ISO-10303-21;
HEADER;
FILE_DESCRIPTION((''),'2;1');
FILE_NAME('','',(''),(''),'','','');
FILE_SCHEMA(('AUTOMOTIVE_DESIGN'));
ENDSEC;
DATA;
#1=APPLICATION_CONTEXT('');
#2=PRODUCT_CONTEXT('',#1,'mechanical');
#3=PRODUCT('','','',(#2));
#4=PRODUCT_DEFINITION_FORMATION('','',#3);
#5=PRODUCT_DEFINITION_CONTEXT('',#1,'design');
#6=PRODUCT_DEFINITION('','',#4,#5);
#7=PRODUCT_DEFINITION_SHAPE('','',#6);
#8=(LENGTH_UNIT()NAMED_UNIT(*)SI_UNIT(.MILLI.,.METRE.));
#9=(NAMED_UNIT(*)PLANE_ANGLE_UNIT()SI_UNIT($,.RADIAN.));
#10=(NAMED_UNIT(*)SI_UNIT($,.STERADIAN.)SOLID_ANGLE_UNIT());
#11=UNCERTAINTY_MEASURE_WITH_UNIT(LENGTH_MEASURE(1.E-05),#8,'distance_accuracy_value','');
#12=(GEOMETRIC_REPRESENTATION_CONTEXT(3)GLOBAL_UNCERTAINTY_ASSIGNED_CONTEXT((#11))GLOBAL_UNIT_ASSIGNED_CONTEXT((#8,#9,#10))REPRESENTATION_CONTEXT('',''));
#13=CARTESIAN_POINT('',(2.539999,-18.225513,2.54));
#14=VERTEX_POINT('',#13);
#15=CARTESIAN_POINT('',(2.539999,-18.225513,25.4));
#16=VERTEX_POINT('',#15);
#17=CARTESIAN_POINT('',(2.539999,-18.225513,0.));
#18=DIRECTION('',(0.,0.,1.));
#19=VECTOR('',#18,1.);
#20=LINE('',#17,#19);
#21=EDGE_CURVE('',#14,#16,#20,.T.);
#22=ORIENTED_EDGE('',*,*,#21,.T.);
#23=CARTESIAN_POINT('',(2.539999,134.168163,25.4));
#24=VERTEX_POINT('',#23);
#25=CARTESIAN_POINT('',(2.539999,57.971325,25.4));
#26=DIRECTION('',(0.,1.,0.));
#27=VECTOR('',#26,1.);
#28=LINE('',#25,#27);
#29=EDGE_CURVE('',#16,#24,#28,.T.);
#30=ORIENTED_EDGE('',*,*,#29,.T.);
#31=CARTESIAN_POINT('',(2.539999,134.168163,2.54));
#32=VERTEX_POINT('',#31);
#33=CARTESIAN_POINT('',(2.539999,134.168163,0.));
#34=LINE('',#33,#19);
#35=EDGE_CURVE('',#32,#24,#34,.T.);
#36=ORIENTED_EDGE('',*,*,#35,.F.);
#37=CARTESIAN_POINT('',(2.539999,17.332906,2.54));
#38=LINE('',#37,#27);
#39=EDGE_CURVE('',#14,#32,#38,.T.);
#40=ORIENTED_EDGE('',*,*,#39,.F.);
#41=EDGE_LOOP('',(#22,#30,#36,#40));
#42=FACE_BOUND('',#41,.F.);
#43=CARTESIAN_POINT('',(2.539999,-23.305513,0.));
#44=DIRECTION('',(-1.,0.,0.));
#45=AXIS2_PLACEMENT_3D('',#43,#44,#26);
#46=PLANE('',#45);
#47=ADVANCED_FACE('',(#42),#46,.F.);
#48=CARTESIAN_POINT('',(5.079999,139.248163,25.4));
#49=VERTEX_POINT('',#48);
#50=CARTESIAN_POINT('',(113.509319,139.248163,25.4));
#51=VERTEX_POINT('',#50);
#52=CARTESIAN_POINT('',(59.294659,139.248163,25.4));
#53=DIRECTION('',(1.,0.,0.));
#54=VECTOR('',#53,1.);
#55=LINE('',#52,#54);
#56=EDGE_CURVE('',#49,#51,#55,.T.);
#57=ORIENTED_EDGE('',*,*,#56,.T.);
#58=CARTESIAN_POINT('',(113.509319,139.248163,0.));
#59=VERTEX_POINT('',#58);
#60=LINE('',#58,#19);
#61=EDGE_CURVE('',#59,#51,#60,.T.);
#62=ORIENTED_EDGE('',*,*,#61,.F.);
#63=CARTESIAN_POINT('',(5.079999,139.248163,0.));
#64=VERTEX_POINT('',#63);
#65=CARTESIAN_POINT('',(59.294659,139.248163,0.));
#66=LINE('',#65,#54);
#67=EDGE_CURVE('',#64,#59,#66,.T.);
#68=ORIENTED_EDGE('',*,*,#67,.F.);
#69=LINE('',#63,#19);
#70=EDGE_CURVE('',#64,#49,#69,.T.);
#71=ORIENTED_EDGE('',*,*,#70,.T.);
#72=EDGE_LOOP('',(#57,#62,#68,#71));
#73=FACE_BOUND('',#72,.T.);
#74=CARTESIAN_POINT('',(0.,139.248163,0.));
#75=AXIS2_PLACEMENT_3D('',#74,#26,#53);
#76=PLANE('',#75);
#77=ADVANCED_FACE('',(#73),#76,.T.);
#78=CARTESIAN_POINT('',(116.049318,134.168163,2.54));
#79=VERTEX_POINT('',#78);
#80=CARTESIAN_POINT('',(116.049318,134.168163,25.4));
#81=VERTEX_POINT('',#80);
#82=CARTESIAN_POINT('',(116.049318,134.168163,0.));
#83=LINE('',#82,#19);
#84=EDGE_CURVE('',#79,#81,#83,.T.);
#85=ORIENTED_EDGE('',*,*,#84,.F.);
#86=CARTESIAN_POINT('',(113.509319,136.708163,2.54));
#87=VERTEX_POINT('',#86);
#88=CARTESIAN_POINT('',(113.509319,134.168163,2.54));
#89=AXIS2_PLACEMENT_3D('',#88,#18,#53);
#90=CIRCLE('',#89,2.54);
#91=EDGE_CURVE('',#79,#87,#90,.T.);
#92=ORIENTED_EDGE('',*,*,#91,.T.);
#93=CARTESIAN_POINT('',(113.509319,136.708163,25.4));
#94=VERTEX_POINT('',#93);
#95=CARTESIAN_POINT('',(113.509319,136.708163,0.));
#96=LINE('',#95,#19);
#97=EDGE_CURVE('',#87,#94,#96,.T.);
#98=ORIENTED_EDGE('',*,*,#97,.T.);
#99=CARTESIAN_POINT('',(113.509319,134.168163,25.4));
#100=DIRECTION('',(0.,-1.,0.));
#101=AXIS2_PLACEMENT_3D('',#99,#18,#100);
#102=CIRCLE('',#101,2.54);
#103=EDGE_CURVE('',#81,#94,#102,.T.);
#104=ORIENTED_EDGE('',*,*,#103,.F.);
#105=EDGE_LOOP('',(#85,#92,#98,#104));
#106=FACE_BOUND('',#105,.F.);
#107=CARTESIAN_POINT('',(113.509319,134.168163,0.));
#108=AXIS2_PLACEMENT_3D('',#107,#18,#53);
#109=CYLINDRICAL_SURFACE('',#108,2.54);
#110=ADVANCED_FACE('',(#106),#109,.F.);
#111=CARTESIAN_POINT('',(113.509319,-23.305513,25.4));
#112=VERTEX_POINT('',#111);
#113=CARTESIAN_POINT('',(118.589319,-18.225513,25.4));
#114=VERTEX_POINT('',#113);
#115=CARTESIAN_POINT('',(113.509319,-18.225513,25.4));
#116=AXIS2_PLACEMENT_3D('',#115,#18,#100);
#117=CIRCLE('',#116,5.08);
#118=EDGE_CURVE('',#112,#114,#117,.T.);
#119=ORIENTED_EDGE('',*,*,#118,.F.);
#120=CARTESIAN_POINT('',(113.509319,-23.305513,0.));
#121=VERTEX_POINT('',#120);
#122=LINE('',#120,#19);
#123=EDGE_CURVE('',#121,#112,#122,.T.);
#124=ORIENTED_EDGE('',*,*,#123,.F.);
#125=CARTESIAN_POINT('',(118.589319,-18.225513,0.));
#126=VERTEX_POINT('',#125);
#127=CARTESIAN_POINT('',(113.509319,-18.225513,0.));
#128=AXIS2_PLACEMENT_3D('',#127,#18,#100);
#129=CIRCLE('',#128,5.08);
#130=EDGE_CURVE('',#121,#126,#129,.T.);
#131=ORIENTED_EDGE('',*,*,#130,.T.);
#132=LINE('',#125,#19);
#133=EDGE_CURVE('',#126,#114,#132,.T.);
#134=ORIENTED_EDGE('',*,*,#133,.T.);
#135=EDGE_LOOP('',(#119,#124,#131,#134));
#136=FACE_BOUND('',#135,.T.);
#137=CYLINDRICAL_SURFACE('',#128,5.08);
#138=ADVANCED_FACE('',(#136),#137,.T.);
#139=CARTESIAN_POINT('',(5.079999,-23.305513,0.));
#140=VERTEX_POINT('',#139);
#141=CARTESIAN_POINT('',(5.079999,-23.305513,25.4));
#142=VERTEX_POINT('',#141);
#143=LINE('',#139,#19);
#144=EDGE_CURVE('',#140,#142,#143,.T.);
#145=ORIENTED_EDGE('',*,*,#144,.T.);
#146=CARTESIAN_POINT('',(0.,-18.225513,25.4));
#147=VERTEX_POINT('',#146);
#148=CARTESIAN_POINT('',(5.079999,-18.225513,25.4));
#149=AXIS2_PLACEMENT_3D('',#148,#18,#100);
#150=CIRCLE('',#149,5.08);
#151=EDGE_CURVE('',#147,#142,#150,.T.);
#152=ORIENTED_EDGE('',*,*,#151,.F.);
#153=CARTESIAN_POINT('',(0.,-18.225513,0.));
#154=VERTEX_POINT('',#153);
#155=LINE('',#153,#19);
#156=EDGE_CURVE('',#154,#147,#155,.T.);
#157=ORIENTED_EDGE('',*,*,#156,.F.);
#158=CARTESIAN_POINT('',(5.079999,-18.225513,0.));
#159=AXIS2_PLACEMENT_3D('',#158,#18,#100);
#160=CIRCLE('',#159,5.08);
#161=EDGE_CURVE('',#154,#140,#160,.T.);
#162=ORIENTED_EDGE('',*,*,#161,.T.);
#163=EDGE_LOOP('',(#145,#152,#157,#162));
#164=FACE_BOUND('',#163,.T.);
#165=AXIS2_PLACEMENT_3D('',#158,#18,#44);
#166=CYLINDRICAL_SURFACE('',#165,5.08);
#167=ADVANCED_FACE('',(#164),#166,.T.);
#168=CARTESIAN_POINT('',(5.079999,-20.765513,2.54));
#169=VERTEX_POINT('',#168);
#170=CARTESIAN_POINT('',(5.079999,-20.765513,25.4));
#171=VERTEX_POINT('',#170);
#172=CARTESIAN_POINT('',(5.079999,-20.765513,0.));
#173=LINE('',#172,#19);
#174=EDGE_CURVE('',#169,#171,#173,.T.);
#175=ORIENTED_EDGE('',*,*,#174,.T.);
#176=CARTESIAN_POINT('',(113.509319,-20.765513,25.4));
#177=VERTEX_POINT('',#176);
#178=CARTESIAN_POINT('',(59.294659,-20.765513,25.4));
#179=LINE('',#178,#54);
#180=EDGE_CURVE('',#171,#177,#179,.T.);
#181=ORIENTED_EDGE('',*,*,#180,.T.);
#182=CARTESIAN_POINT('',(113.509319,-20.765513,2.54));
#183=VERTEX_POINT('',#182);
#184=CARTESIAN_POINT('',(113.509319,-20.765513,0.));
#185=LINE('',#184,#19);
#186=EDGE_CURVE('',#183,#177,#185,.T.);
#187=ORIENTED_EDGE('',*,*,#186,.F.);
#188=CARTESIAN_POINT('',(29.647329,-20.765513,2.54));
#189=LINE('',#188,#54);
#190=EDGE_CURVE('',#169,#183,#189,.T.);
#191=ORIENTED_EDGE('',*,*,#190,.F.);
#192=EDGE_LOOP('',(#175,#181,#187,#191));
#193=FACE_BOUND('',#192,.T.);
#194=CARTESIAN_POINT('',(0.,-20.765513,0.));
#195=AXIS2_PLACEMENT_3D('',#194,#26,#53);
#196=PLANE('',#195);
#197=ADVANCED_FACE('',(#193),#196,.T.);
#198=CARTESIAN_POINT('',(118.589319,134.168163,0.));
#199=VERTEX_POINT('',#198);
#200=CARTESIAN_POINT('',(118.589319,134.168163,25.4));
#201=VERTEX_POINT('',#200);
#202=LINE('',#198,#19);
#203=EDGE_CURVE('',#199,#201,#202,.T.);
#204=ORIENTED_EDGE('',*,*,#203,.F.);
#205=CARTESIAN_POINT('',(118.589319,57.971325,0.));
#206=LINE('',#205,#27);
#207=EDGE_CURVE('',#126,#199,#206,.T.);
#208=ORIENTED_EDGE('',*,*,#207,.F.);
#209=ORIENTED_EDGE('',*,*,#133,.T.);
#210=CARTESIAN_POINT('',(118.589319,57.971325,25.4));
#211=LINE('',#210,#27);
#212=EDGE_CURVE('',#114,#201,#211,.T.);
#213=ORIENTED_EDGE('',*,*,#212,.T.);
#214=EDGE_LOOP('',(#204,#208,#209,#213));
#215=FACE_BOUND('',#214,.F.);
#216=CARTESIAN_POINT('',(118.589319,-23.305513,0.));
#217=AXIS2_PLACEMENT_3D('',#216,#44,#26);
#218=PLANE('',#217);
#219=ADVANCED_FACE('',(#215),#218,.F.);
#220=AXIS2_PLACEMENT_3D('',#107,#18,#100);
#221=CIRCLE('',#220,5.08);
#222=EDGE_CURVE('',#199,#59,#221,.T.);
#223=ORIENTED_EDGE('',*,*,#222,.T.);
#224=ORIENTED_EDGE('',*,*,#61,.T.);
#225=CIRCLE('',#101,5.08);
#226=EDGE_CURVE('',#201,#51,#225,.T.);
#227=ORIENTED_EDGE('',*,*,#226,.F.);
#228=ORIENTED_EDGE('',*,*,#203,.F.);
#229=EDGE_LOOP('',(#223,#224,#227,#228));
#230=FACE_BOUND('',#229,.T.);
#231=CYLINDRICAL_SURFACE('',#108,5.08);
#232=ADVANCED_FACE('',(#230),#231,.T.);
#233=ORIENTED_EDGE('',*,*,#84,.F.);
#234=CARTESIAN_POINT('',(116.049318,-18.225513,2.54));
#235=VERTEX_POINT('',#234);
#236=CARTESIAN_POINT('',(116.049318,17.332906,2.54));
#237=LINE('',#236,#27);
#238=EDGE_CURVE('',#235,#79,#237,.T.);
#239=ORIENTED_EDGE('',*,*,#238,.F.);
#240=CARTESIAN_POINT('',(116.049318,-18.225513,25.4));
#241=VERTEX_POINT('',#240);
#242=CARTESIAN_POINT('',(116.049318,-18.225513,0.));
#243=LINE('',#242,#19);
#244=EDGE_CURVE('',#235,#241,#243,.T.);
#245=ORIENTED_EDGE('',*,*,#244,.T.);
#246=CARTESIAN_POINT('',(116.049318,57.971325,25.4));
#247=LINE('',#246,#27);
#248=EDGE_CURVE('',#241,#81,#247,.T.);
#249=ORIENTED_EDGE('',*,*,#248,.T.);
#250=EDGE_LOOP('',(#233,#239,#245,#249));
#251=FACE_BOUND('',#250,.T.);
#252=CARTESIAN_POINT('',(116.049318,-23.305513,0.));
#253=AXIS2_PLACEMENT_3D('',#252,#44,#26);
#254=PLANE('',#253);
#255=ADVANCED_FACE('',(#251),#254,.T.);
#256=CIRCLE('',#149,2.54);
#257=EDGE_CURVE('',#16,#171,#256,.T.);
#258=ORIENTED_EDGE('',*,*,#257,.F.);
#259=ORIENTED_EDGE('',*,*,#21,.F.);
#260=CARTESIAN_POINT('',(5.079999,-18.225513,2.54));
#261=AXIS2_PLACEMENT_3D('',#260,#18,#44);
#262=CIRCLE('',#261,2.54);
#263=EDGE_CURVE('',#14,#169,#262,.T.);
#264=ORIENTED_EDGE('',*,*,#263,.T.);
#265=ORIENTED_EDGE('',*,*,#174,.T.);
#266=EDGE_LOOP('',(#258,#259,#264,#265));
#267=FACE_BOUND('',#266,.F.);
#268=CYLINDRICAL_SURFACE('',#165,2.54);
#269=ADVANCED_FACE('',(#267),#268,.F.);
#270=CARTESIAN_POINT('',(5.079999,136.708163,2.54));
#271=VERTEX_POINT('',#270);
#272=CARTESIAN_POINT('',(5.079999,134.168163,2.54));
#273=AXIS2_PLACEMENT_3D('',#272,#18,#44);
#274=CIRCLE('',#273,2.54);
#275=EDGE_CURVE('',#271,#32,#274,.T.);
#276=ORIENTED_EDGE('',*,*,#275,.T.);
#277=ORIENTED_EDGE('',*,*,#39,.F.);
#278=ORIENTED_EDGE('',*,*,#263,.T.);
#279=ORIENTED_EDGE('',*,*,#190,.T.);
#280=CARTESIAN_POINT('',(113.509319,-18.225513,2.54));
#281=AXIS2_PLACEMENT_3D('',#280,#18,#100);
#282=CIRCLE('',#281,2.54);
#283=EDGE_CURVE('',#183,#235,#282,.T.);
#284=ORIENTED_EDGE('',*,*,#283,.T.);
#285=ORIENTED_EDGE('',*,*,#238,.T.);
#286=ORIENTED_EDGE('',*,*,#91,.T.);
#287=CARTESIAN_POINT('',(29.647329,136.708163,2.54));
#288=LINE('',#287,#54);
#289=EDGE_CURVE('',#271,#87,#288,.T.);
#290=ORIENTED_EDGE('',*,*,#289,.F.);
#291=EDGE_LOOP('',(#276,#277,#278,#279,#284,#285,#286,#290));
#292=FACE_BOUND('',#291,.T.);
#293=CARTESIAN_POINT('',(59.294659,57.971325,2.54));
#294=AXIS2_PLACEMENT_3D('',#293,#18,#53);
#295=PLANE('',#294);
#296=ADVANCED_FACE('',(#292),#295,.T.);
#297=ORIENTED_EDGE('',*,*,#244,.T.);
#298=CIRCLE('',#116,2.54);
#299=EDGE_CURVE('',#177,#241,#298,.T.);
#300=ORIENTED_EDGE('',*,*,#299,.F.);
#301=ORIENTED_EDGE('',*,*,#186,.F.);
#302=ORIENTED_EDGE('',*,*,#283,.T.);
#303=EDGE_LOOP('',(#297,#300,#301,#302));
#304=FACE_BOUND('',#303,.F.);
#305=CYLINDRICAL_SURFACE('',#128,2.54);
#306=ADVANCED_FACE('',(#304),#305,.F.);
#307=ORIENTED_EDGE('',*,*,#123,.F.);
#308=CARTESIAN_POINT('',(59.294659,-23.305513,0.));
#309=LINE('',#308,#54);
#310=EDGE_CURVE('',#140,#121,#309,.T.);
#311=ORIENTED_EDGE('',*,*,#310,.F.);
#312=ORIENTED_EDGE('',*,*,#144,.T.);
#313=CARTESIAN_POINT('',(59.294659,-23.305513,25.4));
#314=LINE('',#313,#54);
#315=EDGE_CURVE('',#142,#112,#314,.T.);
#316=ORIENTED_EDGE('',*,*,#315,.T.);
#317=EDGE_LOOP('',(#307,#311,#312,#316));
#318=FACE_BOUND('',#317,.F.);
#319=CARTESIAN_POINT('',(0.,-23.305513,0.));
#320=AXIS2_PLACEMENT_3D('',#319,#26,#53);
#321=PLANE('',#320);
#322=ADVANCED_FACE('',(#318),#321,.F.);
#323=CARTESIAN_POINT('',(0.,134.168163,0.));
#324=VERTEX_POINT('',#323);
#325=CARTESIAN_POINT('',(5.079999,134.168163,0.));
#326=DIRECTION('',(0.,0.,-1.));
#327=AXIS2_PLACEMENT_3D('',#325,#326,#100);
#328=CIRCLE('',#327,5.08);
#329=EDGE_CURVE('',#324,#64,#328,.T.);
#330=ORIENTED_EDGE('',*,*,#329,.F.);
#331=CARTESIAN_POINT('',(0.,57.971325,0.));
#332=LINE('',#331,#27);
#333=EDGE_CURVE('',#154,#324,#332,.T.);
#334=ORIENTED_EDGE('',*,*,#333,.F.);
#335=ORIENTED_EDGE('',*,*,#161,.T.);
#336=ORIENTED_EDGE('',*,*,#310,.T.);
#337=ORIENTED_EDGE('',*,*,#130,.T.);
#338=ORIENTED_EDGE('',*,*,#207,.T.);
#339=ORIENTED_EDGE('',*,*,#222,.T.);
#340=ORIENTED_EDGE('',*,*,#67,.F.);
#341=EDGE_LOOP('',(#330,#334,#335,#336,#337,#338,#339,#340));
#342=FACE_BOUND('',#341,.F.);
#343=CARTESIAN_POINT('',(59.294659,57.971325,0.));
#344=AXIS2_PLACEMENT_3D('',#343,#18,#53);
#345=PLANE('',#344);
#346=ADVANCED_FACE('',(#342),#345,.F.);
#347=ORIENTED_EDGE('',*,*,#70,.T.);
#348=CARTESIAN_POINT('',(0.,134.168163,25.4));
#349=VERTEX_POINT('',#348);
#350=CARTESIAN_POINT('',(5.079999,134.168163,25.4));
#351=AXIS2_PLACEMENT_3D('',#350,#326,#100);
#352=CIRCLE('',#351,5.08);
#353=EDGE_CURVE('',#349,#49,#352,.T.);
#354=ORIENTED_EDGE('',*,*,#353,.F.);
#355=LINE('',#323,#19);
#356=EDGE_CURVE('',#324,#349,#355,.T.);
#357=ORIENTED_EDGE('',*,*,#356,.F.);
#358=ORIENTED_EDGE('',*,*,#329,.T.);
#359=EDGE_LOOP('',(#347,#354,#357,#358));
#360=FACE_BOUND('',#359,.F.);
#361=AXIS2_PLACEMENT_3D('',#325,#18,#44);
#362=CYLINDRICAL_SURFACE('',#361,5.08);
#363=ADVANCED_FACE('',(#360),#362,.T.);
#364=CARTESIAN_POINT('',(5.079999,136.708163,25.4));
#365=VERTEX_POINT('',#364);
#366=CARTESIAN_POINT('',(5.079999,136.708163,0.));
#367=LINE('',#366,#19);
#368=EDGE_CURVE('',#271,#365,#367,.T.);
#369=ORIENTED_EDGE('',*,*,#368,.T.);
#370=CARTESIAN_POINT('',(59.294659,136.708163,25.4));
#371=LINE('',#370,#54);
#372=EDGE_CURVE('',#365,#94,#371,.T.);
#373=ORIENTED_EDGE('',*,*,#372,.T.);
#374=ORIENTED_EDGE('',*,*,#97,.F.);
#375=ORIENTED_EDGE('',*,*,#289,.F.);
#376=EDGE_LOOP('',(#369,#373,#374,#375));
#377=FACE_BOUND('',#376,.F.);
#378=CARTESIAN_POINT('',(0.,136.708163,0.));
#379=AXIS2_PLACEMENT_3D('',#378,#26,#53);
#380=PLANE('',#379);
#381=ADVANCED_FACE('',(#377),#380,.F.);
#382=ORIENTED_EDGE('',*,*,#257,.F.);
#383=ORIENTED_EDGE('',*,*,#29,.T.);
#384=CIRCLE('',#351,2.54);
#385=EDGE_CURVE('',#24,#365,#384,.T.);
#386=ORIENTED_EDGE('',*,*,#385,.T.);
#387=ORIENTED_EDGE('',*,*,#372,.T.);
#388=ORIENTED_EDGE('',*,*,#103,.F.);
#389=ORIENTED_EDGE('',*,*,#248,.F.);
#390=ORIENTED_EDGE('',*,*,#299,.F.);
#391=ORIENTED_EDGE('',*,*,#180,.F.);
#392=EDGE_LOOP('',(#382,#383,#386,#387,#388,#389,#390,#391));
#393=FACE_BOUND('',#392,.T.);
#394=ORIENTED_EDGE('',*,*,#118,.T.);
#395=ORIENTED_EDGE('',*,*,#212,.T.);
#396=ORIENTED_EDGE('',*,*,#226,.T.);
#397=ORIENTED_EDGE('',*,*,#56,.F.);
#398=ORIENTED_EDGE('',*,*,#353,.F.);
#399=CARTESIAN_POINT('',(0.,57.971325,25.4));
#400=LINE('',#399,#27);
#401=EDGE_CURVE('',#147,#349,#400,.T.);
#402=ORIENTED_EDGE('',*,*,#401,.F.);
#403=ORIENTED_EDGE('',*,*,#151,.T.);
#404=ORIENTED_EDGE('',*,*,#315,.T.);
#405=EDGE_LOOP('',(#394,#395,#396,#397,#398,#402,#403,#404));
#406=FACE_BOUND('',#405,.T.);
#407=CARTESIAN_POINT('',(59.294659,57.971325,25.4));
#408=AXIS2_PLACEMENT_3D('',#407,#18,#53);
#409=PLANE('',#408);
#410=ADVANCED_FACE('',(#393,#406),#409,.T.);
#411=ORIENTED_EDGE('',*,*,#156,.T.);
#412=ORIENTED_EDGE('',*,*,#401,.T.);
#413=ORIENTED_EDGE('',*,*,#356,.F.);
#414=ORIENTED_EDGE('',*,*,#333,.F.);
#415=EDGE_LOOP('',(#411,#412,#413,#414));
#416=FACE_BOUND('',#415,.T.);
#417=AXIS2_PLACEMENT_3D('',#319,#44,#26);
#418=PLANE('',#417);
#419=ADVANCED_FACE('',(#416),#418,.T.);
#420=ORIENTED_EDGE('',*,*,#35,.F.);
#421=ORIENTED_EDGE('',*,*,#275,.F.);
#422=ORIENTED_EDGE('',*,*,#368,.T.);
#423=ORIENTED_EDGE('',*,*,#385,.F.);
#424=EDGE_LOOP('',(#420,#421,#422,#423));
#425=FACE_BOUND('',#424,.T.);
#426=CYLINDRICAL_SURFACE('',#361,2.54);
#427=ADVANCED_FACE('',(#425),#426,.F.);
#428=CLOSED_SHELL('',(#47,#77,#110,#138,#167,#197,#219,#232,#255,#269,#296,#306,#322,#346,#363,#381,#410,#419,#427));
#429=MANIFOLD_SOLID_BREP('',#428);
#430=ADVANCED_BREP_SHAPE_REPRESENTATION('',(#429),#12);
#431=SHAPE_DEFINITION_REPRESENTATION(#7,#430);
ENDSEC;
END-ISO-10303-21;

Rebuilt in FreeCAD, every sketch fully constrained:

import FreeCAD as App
import Part
import Sketcher
Q = App.Units.Quantity


def edges_at(feature, points):
    """Names of the edges that pass closest to the given points."""
    edges = feature.Shape.Edges
    near = lambda p: min(range(len(edges)), key=lambda i: edges[i].distToShape(Part.Vertex(*p))[0])
    return sorted({f"Edge{near(p) + 1}" for p in points})


def faces_at(feature, points):
    """Names of the faces that lie closest to the given points."""
    faces = feature.Shape.Faces
    near = lambda p: min(range(len(faces)), key=lambda i: faces[i].distToShape(Part.Vertex(*p))[0])
    return sorted({f"Face{near(p) + 1}" for p in points})

doc = App.newDocument("Part")
params = doc.addObject("Spreadsheet::Sheet", "Params")
for row, (alias, value) in enumerate([
    ("pad1_length", "1 in"),
    ("fillet_radius", "0.2 in"),
    ("thickness_wall", "0.1 in"),
], start=1):
    params.set(f"A{row}", alias)
    params.set(f"B{row}", "=" + value)
    params.setAlias(f"B{row}", alias)

body = doc.addObject("PartDesign::Body", "Body")

sketch1 = doc.addObject("Sketcher::SketchObject", "Sketch")
body.addObject(sketch1)
sketch1.AttachmentSupport = (doc.XY_Plane, [""])
sketch1.MapMode = "FlatFace"
sketch1.addGeometry([
    Part.LineSegment(App.Vector(0, 139, 0), App.Vector(0, -23, 0)),
    Part.LineSegment(App.Vector(0, -23, 0), App.Vector(119, -23, 0)),
    Part.LineSegment(App.Vector(119, -23, 0), App.Vector(119, 139, 0)),
    Part.LineSegment(App.Vector(119, 139, 0), App.Vector(0, 139, 0)),
], False)
sketch1.addConstraint([
    Sketcher.Constraint("Coincident", 0, 2, 1, 1),
    Sketcher.Constraint("Coincident", 1, 2, 2, 1),
    Sketcher.Constraint("Coincident", 2, 2, 3, 1),
    Sketcher.Constraint("Coincident", 3, 2, 0, 1),
    Sketcher.Constraint("Vertical", 0),
    Sketcher.Constraint("Horizontal", 1),
    Sketcher.Constraint("Vertical", 2),
    Sketcher.Constraint("Horizontal", 3),
    Sketcher.Constraint("PointOnObject", 0, 2, -2),
    Sketcher.Constraint("DistanceX", 1, 1, 1, 2, Q("118.589319 mm")),
    Sketcher.Constraint("DistanceY", 0, 2, 0, 1, Q("162.553676 mm")),
    Sketcher.Constraint("DistanceY", 0, 2, -1, 1, Q("23.305513 mm")),
])
pad1 = doc.addObject("PartDesign::Pad", "Pad")
body.addObject(pad1)
pad1.Profile = sketch1
pad1.setExpression("Length", "Params.pad1_length")
doc.recompute()

fillet = doc.addObject("PartDesign::Fillet", "Fillet")
body.addObject(fillet)
fillet.Base = (pad1, edges_at(pad1, [
    (118.589, -23.306, 12.7),
    (118.589, 139.248, 12.7),
    (0, 139.248, 12.7),
    (0, -23.306, 12.7),
]))
fillet.setExpression("Radius", "Params.fillet_radius")
doc.recompute()

thickness = doc.addObject("PartDesign::Thickness", "Thickness")
body.addObject(thickness)
thickness.Base = (fillet, faces_at(fillet, [(59.295, 57.971, 25.4)]))
thickness.setExpression("Value", "Params.thickness_wall")
thickness.Reversed = True
thickness.Join = "Arc"

doc.recompute()
